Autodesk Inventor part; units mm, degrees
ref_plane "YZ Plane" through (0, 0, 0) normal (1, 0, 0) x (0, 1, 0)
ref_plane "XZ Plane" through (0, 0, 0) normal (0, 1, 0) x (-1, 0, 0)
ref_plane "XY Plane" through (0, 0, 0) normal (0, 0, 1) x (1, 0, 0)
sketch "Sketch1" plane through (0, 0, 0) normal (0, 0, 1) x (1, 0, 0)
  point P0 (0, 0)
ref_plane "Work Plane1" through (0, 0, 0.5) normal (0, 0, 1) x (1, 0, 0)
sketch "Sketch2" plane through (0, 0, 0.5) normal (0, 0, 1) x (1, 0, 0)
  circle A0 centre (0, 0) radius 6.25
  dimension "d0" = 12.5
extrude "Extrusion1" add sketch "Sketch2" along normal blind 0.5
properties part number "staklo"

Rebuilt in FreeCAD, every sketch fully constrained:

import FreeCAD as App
import Part
import Sketcher
from FreeCAD import Vector

doc = App.newDocument("Part")
body = doc.addObject("PartDesign::Body", "Body")

# Sketch on XY plane
sketch1 = body.newObject("Sketcher::SketchObject", "Sketch")
sketch1.AttachmentSupport = (doc.getObject("XY_Plane"), [""])
sketch1.MapMode = "FlatFace"
sketch1.AttachmentOffset = App.Placement(Vector(0, 0, 0.5), App.Rotation())
sketch1.addGeometry(Part.Circle(Vector(0, 0, 0), Vector(0, 0, 1), 6), False)
sketch1.addConstraint(Sketcher.Constraint("Coincident", 0, 3, -1, 1))
sketch1.addConstraint(Sketcher.Constraint("Diameter", 0, 12.5))
pad1 = body.newObject("PartDesign::Pad", "Pad")
pad1.Profile = sketch1
pad1.Length = 0.5

doc.recompute()
